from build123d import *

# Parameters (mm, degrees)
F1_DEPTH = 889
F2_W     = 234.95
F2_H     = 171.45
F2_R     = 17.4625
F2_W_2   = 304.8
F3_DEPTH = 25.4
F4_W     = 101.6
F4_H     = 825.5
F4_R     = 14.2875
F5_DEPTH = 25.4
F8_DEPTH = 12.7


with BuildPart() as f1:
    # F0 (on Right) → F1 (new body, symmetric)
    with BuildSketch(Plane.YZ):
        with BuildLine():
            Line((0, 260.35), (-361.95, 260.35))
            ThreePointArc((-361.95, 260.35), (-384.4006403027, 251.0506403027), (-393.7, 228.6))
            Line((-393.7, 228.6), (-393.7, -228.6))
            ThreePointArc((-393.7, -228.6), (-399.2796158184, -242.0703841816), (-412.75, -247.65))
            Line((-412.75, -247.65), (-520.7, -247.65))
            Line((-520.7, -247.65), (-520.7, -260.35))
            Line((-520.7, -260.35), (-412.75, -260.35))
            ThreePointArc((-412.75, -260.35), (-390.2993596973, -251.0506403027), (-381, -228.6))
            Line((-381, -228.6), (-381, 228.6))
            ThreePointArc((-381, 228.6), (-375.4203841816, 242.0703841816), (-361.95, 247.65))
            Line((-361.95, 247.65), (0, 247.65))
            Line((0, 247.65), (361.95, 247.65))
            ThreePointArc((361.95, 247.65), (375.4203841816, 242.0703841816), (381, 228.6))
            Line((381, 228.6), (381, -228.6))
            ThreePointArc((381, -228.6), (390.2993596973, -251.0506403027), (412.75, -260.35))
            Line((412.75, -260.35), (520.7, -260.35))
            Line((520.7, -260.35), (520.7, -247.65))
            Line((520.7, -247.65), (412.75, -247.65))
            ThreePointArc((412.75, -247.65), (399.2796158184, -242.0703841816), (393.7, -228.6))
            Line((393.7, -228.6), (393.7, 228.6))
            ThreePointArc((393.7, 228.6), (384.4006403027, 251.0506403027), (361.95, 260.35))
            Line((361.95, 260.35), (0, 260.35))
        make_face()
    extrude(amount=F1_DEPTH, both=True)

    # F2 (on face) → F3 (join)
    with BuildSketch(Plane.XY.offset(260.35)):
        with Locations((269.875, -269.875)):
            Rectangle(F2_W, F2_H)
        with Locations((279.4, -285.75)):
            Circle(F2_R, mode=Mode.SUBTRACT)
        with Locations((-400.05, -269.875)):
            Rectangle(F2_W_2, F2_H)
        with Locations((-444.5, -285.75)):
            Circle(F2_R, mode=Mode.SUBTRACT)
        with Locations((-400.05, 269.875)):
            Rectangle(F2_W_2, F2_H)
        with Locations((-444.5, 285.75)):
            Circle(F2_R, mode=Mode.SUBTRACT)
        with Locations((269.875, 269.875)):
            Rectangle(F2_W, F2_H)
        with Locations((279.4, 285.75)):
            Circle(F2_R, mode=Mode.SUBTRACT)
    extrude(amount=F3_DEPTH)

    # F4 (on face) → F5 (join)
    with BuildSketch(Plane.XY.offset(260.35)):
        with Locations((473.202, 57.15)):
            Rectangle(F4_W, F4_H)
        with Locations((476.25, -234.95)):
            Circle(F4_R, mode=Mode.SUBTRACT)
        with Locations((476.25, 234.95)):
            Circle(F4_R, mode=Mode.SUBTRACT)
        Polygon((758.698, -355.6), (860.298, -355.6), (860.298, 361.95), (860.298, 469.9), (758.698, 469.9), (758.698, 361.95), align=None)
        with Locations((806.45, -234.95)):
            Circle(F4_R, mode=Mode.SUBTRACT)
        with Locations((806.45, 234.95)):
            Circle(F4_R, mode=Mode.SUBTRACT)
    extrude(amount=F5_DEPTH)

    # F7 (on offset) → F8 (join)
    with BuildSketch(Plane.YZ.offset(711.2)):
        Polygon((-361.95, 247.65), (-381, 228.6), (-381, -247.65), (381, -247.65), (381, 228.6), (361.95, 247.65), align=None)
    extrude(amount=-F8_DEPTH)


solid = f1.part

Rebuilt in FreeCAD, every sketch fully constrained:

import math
import FreeCAD as App
import Part
import Sketcher
Q = App.Units.Quantity

doc = App.newDocument("Part")
body = doc.addObject("PartDesign::Body", "Body")

sketch1 = body.newObject("Sketcher::SketchObject", "Sketch")
sketch1.AttachmentSupport = (doc.getObject("YZ_Plane"), [""])
sketch1.MapMode = "FlatFace"
sketch1.addGeometry([
    Part.ArcOfCircle(Part.Circle(App.Vector(-361.95, 228.6, 0), App.Vector(0, 0, 1), 31.75), math.radians(90), math.radians(180)),
    Part.LineSegment(App.Vector(-393.7, 228.6, 0), App.Vector(-393.7, -228.6, 0)),
    Part.ArcOfCircle(Part.Circle(App.Vector(-412.75, -228.6, 0), App.Vector(0, 0, 1), 19.05), math.radians(-90), math.radians(0)),
    Part.LineSegment(App.Vector(-412.75, -247.65, 0), App.Vector(-520.7, -247.65, 0)),
    Part.LineSegment(App.Vector(-520.7, -247.65, 0), App.Vector(-520.7, -260.35, 0)),
    Part.LineSegment(App.Vector(-520.7, -260.35, 0), App.Vector(-412.75, -260.35, 0)),
    Part.ArcOfCircle(Part.Circle(App.Vector(-412.75, -228.6, 0), App.Vector(0, 0, 1), 31.75), math.radians(-90), math.radians(0)),
    Part.LineSegment(App.Vector(-381, -228.6, 0), App.Vector(-381, 228.6, 0)),
    Part.ArcOfCircle(Part.Circle(App.Vector(-361.95, 228.6, 0), App.Vector(0, 0, 1), 19.05), math.radians(90), math.radians(180)),
    Part.LineSegment(App.Vector(-361.95, 247.65, 0), App.Vector(361.95, 247.65, 0)),
    Part.ArcOfCircle(Part.Circle(App.Vector(361.95, 228.6, 0), App.Vector(0, 0, 1), 19.05), math.radians(0), math.radians(90)),
    Part.LineSegment(App.Vector(381, 228.6, 0), App.Vector(381, -228.6, 0)),
    Part.ArcOfCircle(Part.Circle(App.Vector(412.75, -228.6, 0), App.Vector(0, 0, 1), 31.75), math.radians(180), math.radians(270)),
    Part.LineSegment(App.Vector(412.75, -260.35, 0), App.Vector(520.7, -260.35, 0)),
    Part.LineSegment(App.Vector(520.7, -260.35, 0), App.Vector(520.7, -247.65, 0)),
    Part.LineSegment(App.Vector(520.7, -247.65, 0), App.Vector(412.75, -247.65, 0)),
    Part.ArcOfCircle(Part.Circle(App.Vector(412.75, -228.6, 0), App.Vector(0, 0, 1), 19.05), math.radians(180), math.radians(270)),
    Part.LineSegment(App.Vector(393.7, -228.6, 0), App.Vector(393.7, 228.6, 0)),
    Part.ArcOfCircle(Part.Circle(App.Vector(361.95, 228.6, 0), App.Vector(0, 0, 1), 31.75), math.radians(0), math.radians(90)),
    Part.LineSegment(App.Vector(361.95, 260.35, 0), App.Vector(-361.95, 260.35, 0)),
], False)
sketch1.addConstraint([
    Sketcher.Constraint("Tangent", 0, 2, 1, 1),
    Sketcher.Constraint("Tangent", 1, 2, 2, 2),
    Sketcher.Constraint("Tangent", 2, 1, 3, 1),
    Sketcher.Constraint("Coincident", 3, 2, 4, 1),
    Sketcher.Constraint("Coincident", 4, 2, 5, 1),
    Sketcher.Constraint("Tangent", 5, 2, 6, 1),
    Sketcher.Constraint("Tangent", 6, 2, 7, 1),
    Sketcher.Constraint("Tangent", 7, 2, 8, 2),
    Sketcher.Constraint("Tangent", 8, 1, 9, 1),
    Sketcher.Constraint("Tangent", 9, 2, 10, 2),
    Sketcher.Constraint("Tangent", 10, 1, 11, 1),
    Sketcher.Constraint("Tangent", 11, 2, 12, 1),
    Sketcher.Constraint("Tangent", 12, 2, 13, 1),
    Sketcher.Constraint("Coincident", 13, 2, 14, 1),
    Sketcher.Constraint("Coincident", 14, 2, 15, 1),
    Sketcher.Constraint("Tangent", 15, 2, 16, 2),
    Sketcher.Constraint("Tangent", 16, 1, 17, 1),
    Sketcher.Constraint("Tangent", 17, 2, 18, 1),
    Sketcher.Constraint("Tangent", 18, 2, 19, 1),
    Sketcher.Constraint("Tangent", 19, 2, 0, 1),
    Sketcher.Constraint("Vertical", 1),
    Sketcher.Constraint("Horizontal", 3),
    Sketcher.Constraint("Vertical", 4),
    Sketcher.Constraint("Horizontal", 5),
    Sketcher.Constraint("Vertical", 7),
    Sketcher.Constraint("Horizontal", 9),
    Sketcher.Constraint("Vertical", 11),
    Sketcher.Constraint("Horizontal", 13),
    Sketcher.Constraint("Vertical", 14),
    Sketcher.Constraint("Horizontal", 15),
    Sketcher.Constraint("Vertical", 17),
    Sketcher.Constraint("Horizontal", 19),
    Sketcher.Constraint("Coincident", 6, 3, 2, 3),
    Sketcher.Constraint("Coincident", 8, 3, 0, 3),
    Sketcher.Constraint("Coincident", 16, 3, 12, 3),
    Sketcher.Constraint("Coincident", 18, 3, 10, 3),
    Sketcher.Constraint("Equal", 0, 6),
    Sketcher.Constraint("Equal", 8, 10),
    Sketcher.Constraint("Equal", 6, 12),
    Sketcher.Constraint("Symmetric", 6, 2, 10, 1, -1, 1),
    Sketcher.Constraint("Symmetric", 4, 2, 13, 2, -2),
    Sketcher.Constraint("DistanceY", 1, 2, 1, 1, Q("18 in")),
    Sketcher.Constraint("Radius", 0, Q("1.25 in")),
    Sketcher.Constraint("Radius", 2, Q("0.75 in")),
    Sketcher.Constraint("DistanceX", 9, 1, 9, 2, Q("28.5 in")),
    Sketcher.Constraint("DistanceX", 3, 2, 1, 2, Q("5 in")),
])
pad1 = body.newObject("PartDesign::Pad", "Pad")
pad1.Profile = sketch1
pad1.Length = Q("70 in")
pad1.Midplane = True

sketch2 = body.newObject("Sketcher::SketchObject", "Sketch001")
sketch2.AttachmentSupport = (doc.getObject("XY_Plane"), [""])
sketch2.MapMode = "FlatFace"
sketch2.AttachmentOffset = App.Placement(App.Vector(0, 0, 10.25 * 25.4), App.Rotation())
sketch2.addGeometry([
    Part.LineSegment(App.Vector(152.4, -184.15, 0), App.Vector(152.4, -355.6, 0)),
    Part.LineSegment(App.Vector(152.4, -355.6, 0), App.Vector(387.35, -355.6, 0)),
    Part.LineSegment(App.Vector(387.35, -355.6, 0), App.Vector(387.35, -184.15, 0)),
    Part.LineSegment(App.Vector(387.35, -184.15, 0), App.Vector(152.4, -184.15, 0)),
    Part.Circle(App.Vector(279.4, -285.75, 0), App.Vector(0, 0, 1), 17.4625),
    Part.LineSegment(App.Vector(-552.45, -184.15, 0), App.Vector(-552.45, -355.6, 0)),
    Part.LineSegment(App.Vector(-552.45, -355.6, 0), App.Vector(-247.65, -355.6, 0)),
    Part.LineSegment(App.Vector(-247.65, -355.6, 0), App.Vector(-247.65, -184.15, 0)),
    Part.LineSegment(App.Vector(-247.65, -184.15, 0), App.Vector(-552.45, -184.15, 0)),
    Part.Circle(App.Vector(-444.5, -285.75, 0), App.Vector(0, 0, 1), 17.4625),
    Part.LineSegment(App.Vector(-552.45, 355.6, 0), App.Vector(-552.45, 184.15, 0)),
    Part.LineSegment(App.Vector(-552.45, 184.15, 0), App.Vector(-247.65, 184.15, 0)),
    Part.LineSegment(App.Vector(-247.65, 184.15, 0), App.Vector(-247.65, 355.6, 0)),
    Part.LineSegment(App.Vector(-247.65, 355.6, 0), App.Vector(-552.45, 355.6, 0)),
    Part.Circle(App.Vector(-444.5, 285.75, 0), App.Vector(0, 0, 1), 17.4625),
    Part.LineSegment(App.Vector(152.4, 355.6, 0), App.Vector(152.4, 184.15, 0)),
    Part.LineSegment(App.Vector(152.4, 184.15, 0), App.Vector(387.35, 184.15, 0)),
    Part.LineSegment(App.Vector(387.35, 184.15, 0), App.Vector(387.35, 355.6, 0)),
    Part.LineSegment(App.Vector(387.35, 355.6, 0), App.Vector(152.4, 355.6, 0)),
    Part.Circle(App.Vector(279.4, 285.75, 0), App.Vector(0, 0, 1), 17.4625),
], False)
sketch2.addConstraint([
    Sketcher.Constraint("Coincident", 0, 2, 1, 1),
    Sketcher.Constraint("Coincident", 1, 2, 2, 1),
    Sketcher.Constraint("Coincident", 2, 2, 3, 1),
    Sketcher.Constraint("Coincident", 3, 2, 0, 1),
    Sketcher.Constraint("Coincident", 5, 2, 6, 1),
    Sketcher.Constraint("Coincident", 6, 2, 7, 1),
    Sketcher.Constraint("Coincident", 7, 2, 8, 1),
    Sketcher.Constraint("Coincident", 8, 2, 5, 1),
    Sketcher.Constraint("Coincident", 10, 2, 11, 1),
    Sketcher.Constraint("Coincident", 11, 2, 12, 1),
    Sketcher.Constraint("Coincident", 12, 2, 13, 1),
    Sketcher.Constraint("Coincident", 13, 2, 10, 1),
    Sketcher.Constraint("Coincident", 15, 2, 16, 1),
    Sketcher.Constraint("Coincident", 16, 2, 17, 1),
    Sketcher.Constraint("Coincident", 17, 2, 18, 1),
    Sketcher.Constraint("Coincident", 18, 2, 15, 1),
    Sketcher.Constraint("Vertical", 0),
    Sketcher.Constraint("Horizontal", 1),
    Sketcher.Constraint("Vertical", 2),
    Sketcher.Constraint("Horizontal", 3),
    Sketcher.Constraint("Vertical", 5),
    Sketcher.Constraint("Horizontal", 6),
    Sketcher.Constraint("Vertical", 7),
    Sketcher.Constraint("Horizontal", 8),
    Sketcher.Constraint("Vertical", 10),
    Sketcher.Constraint("Horizontal", 11),
    Sketcher.Constraint("Vertical", 12),
    Sketcher.Constraint("Horizontal", 13),
    Sketcher.Constraint("Vertical", 15),
    Sketcher.Constraint("Horizontal", 16),
    Sketcher.Constraint("Vertical", 17),
    Sketcher.Constraint("Horizontal", 18),
    Sketcher.Constraint("Equal", 4, 9),
    Sketcher.Constraint("Equal", 9, 14),
    Sketcher.Constraint("Equal", 14, 19),
    Sketcher.Constraint("Symmetric", 9, 3, 14, 3, -1),
    Sketcher.Constraint("Symmetric", 4, 3, 19, 3, -1),
    Sketcher.Constraint("Symmetric", 8, 2, 10, 2, -1),
    Sketcher.Constraint("Symmetric", 6, 2, 12, 2, -1),
    Sketcher.Constraint("Symmetric", 3, 2, 15, 2, -1),
    Sketcher.Constraint("Symmetric", 1, 2, 17, 2, -1),
    Sketcher.Constraint("Horizontal", 4, 3, 9, 3),
    Sketcher.Constraint("Horizontal", 1, 2, 5, 2),
    Sketcher.Constraint("Horizontal", 3, 2, 7, 2),
    Sketcher.Constraint("DistanceX", 6, 1, 6, 2, Q("12 in")),
    Sketcher.Constraint("Diameter", 4, Q("1.375 in")),
    Sketcher.Constraint("DistanceX", -1, 1, 4, 3, Q("11 in")),
    Sketcher.Constraint("DistanceX", -1, 1, 0, 2, Q("6 in")),
    Sketcher.Constraint("DistanceY", 0, 2, -1, 1, Q("14 in")),
    Sketcher.Constraint("DistanceY", 4, 3, 2, 2, Q("4 in")),
    Sketcher.Constraint("DistanceX", 1, 1, 1, 2, Q("9.25 in")),
    Sketcher.Constraint("DistanceY", 0, 2, 0, 1, Q("6.75 in")),
    Sketcher.Constraint("DistanceX", 9, 3, -1, 1, Q("17.5 in")),
    Sketcher.Constraint("DistanceX", 5, 2, -1, 1, Q("21.75 in")),
])
pad2 = body.newObject("PartDesign::Pad", "Pad001")
pad2.Profile = sketch2
pad2.Length = Q("1 in")

sketch3 = body.newObject("Sketcher::SketchObject", "Sketch002")
sketch3.AttachmentSupport = (doc.getObject("XY_Plane"), [""])
sketch3.MapMode = "FlatFace"
sketch3.AttachmentOffset = App.Placement(App.Vector(0, 0, 10.25 * 25.4), App.Rotation())
sketch3.addGeometry([
    Part.LineSegment(App.Vector(422.402, 469.9, 0), App.Vector(422.402, -355.6, 0)),
    Part.LineSegment(App.Vector(422.402, -355.6, 0), App.Vector(524.002, -355.6, 0)),
    Part.LineSegment(App.Vector(524.002, -355.6, 0), App.Vector(524.002, 469.9, 0)),
    Part.LineSegment(App.Vector(524.002, 469.9, 0), App.Vector(422.402, 469.9, 0)),
    Part.Circle(App.Vector(476.25, -234.95, 0), App.Vector(0, 0, 1), 14.2875),
    Part.Circle(App.Vector(476.25, 234.95, 0), App.Vector(0, 0, 1), 14.2875),
    Part.LineSegment(App.Vector(758.698, -355.6, 0), App.Vector(860.298, -355.6, 0)),
    Part.LineSegment(App.Vector(860.298, -355.6, 0), App.Vector(860.298, 469.9, 0)),
    Part.LineSegment(App.Vector(860.298, 469.9, 0), App.Vector(758.698, 469.9, 0)),
    Part.LineSegment(App.Vector(758.698, 469.9, 0), App.Vector(758.698, -355.6, 0)),
    Part.Circle(App.Vector(806.45, -234.95, 0), App.Vector(0, 0, 1), 14.2875),
    Part.Circle(App.Vector(806.45, 234.95, 0), App.Vector(0, 0, 1), 14.2875),
], False)
sketch3.addConstraint([
    Sketcher.Constraint("Coincident", 0, 2, 1, 1),
    Sketcher.Constraint("Coincident", 1, 2, 2, 1),
    Sketcher.Constraint("Coincident", 2, 2, 3, 1),
    Sketcher.Constraint("Coincident", 3, 2, 0, 1),
    Sketcher.Constraint("Coincident", 6, 2, 7, 1),
    Sketcher.Constraint("Coincident", 7, 2, 8, 1),
    Sketcher.Constraint("Coincident", 8, 2, 9, 1),
    Sketcher.Constraint("Coincident", 9, 2, 6, 1),
    Sketcher.Constraint("Vertical", 0),
    Sketcher.Constraint("Horizontal", 1),
    Sketcher.Constraint("Vertical", 2),
    Sketcher.Constraint("Horizontal", 3),
    Sketcher.Constraint("Horizontal", 6),
    Sketcher.Constraint("Vertical", 7),
    Sketcher.Constraint("Horizontal", 8),
    Sketcher.Constraint("Vertical", 9),
    Sketcher.Constraint("Equal", 4, 5),
    Sketcher.Constraint("Equal", 5, 10),
    Sketcher.Constraint("Equal", 10, 11),
    Sketcher.Constraint("Symmetric", 4, 3, 5, 3, -1),
    Sketcher.Constraint("Symmetric", 10, 3, 11, 3, -1),
    Sketcher.Constraint("Horizontal", 4, 3, 10, 3),
    Sketcher.Constraint("Horizontal", 1, 2, 6, 2),
    Sketcher.Constraint("Horizontal", 3, 2, 7, 2),
    Sketcher.Constraint("Equal", 3, 6),
    Sketcher.Constraint("DistanceX", 1, 1, 1, 2, Q("4 in")),
    Sketcher.Constraint("Diameter", 4, Q("1.125 in")),
    Sketcher.Constraint("DistanceY", 0, 2, 0, 1, Q("32.5 in")),
    Sketcher.Constraint("DistanceY", 0, 2, -1, 1, Q("14 in")),
    Sketcher.Constraint("DistanceX", 4, 3, 10, 3, Q("13 in")),
    Sketcher.Constraint("DistanceY", 4, 3, 5, 3, Q("18.5 in")),
    Sketcher.Constraint("DistanceX", -1, 1, 4, 3, Q("18.75 in")),
    Sketcher.Constraint("DistanceX", -1, 1, 0, 2, Q("16.63 in")),
    Sketcher.Constraint("DistanceX", -1, 1, 6, 2, Q("33.87 in")),
])
pad3 = body.newObject("PartDesign::Pad", "Pad002")
pad3.Profile = sketch3
pad3.Length = Q("1 in")

sketch4 = body.newObject("Sketcher::SketchObject", "Sketch003")
sketch4.AttachmentSupport = (doc.getObject("YZ_Plane"), [""])
sketch4.MapMode = "FlatFace"
sketch4.AttachmentOffset = App.Placement(App.Vector(0, 0, 28 * 25.4), App.Rotation())
sketch4.addGeometry([
    Part.LineSegment(App.Vector(-361.95, 247.65, 0), App.Vector(-381, 228.6, 0)),
    Part.LineSegment(App.Vector(-381, 228.6, 0), App.Vector(-381, -247.65, 0)),
    Part.LineSegment(App.Vector(-381, -247.65, 0), App.Vector(381, -247.65, 0)),
    Part.LineSegment(App.Vector(381, -247.65, 0), App.Vector(381, 228.6, 0)),
    Part.LineSegment(App.Vector(381, 228.6, 0), App.Vector(361.95, 247.65, 0)),
    Part.LineSegment(App.Vector(361.95, 247.65, 0), App.Vector(-361.95, 247.65, 0)),
], False)
sketch4.addConstraint([
    Sketcher.Constraint("Coincident", 0, 2, 1, 1),
    Sketcher.Constraint("Coincident", 1, 2, 2, 1),
    Sketcher.Constraint("Coincident", 2, 2, 3, 1),
    Sketcher.Constraint("Coincident", 3, 2, 4, 1),
    Sketcher.Constraint("Coincident", 4, 2, 5, 1),
    Sketcher.Constraint("Coincident", 5, 2, 0, 1),
    Sketcher.Constraint("Vertical", 1),
    Sketcher.Constraint("Horizontal", 2),
    Sketcher.Constraint("Vertical", 3),
    Sketcher.Constraint("Horizontal", 5),
    Sketcher.Constraint("Symmetric", 0, 2, 3, 2, -2),
    Sketcher.Constraint("Perpendicular", 0, 4),
    Sketcher.Constraint("Equal", 0, 4),
    Sketcher.Constraint("DistanceX", 2, 1, 2, 2, Q("30 in")),
    Sketcher.Constraint("DistanceX", 5, 2, 5, 1, Q("28.5 in")),
    Sketcher.Constraint("DistanceY", -1, 1, 0, 2, Q("9 in")),
    Sketcher.Constraint("DistanceY", 1, 2, 1, 1, Q("18.75 in")),
])
pad4 = body.newObject("PartDesign::Pad", "Pad003")
pad4.Profile = sketch4
pad4.Length = Q("0.5 in")
pad4.Reversed = True

doc.recompute()
